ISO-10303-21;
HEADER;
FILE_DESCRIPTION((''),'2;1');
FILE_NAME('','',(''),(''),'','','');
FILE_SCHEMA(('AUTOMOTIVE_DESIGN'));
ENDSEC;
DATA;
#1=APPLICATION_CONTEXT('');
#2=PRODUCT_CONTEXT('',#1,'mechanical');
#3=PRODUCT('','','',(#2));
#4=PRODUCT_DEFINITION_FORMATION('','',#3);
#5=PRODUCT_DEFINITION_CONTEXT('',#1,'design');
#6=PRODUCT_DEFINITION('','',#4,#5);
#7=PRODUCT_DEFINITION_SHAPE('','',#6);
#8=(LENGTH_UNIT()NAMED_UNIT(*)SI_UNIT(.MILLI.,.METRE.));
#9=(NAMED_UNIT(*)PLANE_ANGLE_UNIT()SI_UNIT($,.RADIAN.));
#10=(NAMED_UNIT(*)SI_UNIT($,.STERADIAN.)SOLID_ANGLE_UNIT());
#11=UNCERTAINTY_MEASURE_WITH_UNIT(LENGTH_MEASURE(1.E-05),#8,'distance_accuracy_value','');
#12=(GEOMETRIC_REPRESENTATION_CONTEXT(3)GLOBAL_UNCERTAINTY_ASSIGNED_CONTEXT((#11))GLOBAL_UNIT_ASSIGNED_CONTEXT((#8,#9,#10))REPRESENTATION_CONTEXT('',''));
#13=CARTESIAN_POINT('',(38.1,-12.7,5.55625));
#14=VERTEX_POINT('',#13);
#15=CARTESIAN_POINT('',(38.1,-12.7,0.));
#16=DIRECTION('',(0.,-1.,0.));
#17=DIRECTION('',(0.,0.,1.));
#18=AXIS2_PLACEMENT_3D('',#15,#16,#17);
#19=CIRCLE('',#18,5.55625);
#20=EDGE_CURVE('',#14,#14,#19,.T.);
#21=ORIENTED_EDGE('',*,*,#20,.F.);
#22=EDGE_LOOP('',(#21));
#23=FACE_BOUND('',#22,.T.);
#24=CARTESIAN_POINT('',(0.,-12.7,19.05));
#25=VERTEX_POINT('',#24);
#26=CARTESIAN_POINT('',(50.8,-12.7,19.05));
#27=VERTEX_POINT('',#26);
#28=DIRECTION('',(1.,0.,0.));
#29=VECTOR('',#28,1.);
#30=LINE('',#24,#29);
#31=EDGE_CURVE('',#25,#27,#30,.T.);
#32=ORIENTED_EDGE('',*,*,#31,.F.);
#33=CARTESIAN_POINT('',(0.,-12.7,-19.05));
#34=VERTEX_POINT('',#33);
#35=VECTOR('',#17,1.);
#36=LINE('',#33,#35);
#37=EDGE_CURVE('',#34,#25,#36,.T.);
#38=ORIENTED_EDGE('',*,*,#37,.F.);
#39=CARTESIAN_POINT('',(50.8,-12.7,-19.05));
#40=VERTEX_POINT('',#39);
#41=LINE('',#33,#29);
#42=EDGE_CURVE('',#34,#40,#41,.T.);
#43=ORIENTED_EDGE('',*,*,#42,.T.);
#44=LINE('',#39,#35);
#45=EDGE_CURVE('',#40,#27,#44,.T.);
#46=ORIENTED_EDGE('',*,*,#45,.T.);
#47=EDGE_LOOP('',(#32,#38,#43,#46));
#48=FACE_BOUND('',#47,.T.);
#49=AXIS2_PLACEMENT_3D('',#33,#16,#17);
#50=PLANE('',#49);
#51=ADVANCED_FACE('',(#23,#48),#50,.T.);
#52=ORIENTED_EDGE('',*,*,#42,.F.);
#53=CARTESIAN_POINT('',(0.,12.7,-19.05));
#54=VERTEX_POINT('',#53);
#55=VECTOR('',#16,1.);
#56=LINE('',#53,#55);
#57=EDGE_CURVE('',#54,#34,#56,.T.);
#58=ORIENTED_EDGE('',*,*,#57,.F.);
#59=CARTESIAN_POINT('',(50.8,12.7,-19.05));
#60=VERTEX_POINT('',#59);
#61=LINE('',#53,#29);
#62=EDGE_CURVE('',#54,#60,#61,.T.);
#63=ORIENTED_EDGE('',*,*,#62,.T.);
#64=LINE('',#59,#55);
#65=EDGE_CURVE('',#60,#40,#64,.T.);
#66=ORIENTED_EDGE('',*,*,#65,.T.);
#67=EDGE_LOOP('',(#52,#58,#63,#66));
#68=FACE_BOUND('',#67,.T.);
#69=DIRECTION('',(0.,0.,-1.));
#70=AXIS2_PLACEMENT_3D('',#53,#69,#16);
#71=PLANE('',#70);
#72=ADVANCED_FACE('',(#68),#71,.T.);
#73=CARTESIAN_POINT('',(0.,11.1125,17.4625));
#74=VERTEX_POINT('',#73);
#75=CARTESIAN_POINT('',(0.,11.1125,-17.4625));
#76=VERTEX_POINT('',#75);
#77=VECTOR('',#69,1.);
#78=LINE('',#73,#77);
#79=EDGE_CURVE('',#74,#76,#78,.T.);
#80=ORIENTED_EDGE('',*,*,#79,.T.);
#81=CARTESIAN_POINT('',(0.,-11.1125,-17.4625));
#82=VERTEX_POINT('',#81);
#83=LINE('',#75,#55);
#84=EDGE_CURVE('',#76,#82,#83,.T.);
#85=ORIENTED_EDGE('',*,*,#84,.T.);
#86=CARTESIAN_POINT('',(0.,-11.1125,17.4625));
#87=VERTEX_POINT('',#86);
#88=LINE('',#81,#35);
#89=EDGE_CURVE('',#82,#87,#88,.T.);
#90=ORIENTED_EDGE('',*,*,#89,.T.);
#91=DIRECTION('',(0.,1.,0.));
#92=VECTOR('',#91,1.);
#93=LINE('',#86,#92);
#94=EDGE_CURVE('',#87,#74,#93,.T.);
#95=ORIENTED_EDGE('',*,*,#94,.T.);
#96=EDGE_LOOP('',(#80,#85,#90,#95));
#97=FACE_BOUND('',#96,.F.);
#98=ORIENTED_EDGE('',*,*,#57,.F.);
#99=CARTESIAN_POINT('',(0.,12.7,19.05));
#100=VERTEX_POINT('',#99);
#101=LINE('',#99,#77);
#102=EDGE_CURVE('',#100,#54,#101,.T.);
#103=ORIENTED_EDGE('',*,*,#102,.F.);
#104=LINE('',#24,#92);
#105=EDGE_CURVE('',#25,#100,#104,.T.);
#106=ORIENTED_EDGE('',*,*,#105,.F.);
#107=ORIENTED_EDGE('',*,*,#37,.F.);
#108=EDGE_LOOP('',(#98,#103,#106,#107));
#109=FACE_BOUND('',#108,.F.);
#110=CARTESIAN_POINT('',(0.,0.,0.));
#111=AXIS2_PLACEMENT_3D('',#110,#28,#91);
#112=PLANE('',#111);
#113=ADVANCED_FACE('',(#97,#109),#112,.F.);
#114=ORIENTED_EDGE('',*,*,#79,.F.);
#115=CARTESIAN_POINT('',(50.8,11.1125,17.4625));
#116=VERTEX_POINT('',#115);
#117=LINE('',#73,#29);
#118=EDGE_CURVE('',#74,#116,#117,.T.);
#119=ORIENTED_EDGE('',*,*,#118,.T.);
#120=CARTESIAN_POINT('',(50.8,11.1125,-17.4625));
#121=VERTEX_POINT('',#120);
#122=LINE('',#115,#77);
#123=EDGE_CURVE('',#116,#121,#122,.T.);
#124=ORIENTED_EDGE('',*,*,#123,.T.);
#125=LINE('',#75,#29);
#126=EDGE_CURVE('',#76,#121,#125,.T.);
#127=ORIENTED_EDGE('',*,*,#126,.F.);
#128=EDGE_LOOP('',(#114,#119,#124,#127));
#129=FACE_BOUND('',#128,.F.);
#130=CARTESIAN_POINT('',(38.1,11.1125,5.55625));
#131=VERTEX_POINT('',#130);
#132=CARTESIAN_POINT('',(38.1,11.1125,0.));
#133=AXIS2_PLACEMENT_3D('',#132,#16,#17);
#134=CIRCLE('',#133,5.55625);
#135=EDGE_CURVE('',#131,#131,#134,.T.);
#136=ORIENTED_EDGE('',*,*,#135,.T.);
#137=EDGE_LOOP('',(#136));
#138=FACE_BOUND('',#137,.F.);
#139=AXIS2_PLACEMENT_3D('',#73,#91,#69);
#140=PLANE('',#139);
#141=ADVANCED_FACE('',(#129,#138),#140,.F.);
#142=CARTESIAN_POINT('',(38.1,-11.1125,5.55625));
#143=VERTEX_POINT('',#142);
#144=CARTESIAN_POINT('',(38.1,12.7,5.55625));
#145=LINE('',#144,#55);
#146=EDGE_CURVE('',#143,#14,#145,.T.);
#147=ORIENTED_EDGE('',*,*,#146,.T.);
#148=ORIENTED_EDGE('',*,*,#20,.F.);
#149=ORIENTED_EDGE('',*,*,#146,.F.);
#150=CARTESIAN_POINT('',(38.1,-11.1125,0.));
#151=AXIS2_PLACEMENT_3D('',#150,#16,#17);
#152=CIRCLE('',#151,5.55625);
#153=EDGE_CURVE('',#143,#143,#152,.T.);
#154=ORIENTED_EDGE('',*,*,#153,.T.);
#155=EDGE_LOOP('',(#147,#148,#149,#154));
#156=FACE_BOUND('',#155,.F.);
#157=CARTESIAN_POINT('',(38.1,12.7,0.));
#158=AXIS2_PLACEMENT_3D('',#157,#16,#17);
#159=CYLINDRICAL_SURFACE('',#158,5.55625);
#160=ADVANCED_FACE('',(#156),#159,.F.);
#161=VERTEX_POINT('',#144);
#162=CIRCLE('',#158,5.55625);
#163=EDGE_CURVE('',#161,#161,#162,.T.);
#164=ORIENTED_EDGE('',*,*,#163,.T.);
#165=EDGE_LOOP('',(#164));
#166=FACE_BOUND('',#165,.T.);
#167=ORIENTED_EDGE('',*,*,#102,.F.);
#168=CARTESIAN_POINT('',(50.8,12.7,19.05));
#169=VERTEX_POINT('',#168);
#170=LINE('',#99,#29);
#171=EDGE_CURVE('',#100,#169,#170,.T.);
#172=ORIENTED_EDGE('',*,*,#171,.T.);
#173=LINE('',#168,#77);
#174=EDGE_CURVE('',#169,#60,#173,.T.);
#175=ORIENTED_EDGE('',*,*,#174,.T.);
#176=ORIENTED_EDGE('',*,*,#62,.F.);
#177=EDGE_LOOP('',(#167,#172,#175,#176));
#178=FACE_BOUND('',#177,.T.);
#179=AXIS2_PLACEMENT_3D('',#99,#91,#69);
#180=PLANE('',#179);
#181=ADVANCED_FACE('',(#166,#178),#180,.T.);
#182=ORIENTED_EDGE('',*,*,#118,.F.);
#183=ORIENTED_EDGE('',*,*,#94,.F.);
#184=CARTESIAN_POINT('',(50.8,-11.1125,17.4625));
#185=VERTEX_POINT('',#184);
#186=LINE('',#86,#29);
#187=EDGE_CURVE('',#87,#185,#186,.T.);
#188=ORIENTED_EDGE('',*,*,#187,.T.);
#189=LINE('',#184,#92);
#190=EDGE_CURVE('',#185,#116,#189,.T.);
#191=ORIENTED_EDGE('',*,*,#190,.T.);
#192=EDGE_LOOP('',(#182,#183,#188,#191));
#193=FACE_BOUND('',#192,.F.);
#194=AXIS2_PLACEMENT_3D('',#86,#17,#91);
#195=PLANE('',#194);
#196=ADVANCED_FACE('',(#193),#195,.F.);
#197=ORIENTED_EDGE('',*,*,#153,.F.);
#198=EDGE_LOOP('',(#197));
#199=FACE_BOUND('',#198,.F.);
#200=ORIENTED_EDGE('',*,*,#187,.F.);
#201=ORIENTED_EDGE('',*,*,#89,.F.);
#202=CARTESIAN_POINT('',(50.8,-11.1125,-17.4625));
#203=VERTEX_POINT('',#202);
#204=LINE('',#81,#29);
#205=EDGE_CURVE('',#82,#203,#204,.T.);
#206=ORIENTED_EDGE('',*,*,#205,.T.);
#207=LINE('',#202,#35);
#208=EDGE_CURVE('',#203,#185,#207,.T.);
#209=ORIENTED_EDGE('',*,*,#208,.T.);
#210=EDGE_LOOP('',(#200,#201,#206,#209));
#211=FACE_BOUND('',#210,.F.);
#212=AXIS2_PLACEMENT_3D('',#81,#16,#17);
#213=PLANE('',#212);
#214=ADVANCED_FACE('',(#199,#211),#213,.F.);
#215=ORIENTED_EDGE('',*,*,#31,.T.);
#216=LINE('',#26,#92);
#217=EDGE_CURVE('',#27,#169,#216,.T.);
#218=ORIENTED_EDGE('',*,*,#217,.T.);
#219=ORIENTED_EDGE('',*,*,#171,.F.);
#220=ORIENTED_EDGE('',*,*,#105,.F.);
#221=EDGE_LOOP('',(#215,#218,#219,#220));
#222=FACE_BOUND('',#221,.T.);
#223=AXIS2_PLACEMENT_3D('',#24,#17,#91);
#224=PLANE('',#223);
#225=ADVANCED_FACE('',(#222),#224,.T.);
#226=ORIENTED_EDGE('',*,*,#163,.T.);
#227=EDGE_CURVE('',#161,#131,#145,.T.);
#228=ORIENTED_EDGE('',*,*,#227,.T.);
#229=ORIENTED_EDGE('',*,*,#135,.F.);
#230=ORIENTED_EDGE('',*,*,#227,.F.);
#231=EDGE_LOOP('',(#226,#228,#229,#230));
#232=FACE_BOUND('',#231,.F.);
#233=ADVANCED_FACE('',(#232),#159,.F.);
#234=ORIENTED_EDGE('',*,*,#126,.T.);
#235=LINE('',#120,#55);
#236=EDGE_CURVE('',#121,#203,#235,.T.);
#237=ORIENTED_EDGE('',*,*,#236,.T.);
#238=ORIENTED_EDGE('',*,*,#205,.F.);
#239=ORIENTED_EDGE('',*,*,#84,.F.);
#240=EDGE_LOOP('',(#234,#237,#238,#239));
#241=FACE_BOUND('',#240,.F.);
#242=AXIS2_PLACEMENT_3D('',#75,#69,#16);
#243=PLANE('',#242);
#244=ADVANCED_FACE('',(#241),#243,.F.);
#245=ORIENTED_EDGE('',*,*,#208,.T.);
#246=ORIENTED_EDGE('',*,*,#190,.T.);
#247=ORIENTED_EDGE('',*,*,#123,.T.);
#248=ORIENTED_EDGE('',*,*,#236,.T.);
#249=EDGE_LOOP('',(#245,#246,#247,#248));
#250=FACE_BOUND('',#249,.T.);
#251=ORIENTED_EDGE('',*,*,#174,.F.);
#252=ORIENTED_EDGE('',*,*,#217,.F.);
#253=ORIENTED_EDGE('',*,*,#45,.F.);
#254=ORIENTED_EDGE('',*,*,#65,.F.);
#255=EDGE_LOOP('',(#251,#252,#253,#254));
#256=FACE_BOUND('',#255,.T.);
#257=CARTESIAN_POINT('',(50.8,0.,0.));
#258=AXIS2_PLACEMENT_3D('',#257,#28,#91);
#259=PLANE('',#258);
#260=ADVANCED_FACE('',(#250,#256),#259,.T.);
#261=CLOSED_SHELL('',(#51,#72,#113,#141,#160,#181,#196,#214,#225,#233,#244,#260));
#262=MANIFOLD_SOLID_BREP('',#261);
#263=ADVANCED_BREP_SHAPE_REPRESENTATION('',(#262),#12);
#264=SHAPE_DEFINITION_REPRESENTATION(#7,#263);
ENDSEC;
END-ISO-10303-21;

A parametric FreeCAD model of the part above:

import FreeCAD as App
import Part
import Sketcher
from FreeCAD import Vector
Q = App.Units.Quantity

doc = App.newDocument("Part")
params = doc.addObject("Spreadsheet::Sheet", "Params")
for row, (alias, value) in enumerate([
    ("sketch1_width", "1 in"),
    ("sketch1_height", "1.5 in"),
    ("pad1_length", "2 in"),
    ("sketch2_diameter", "0.4375 in"),
    ("hole_diameter", "0.4375 in"),
], start=1):
    params.set(f"A{row}", alias)
    params.set(f"B{row}", "=" + value)
    params.setAlias(f"B{row}", alias)

body = doc.addObject("PartDesign::Body", "Body")

# Sketch on YZ plane
sketch1 = body.newObject("Sketcher::SketchObject", "Sketch")
sketch1.AttachmentSupport = (doc.getObject("YZ_Plane"), [""])
sketch1.MapMode = "FlatFace"
sketch1.addGeometry(Part.LineSegment(Vector(13, 19, 0), Vector(-13, 19, 0)), False)
sketch1.addGeometry(Part.LineSegment(Vector(-13, 19, 0), Vector(-13, -19, 0)), False)
sketch1.addGeometry(Part.LineSegment(Vector(-13, -19, 0), Vector(13, -19, 0)), False)
sketch1.addGeometry(Part.LineSegment(Vector(13, -19, 0), Vector(13, 19, 0)), False)
sketch1.addGeometry(Part.LineSegment(Vector(-11, -17, 0), Vector(-11, 17, 0)), False)
sketch1.addGeometry(Part.LineSegment(Vector(-11, 17, 0), Vector(11, 17, 0)), False)
sketch1.addGeometry(Part.LineSegment(Vector(11, 17, 0), Vector(11, -17, 0)), False)
sketch1.addGeometry(Part.LineSegment(Vector(11, -17, 0), Vector(-11, -17, 0)), False)
sketch1.addConstraint(Sketcher.Constraint("Coincident", 0, 2, 1, 1))
sketch1.addConstraint(Sketcher.Constraint("Coincident", 1, 2, 2, 1))
sketch1.addConstraint(Sketcher.Constraint("Coincident", 2, 2, 3, 1))
sketch1.addConstraint(Sketcher.Constraint("Coincident", 3, 2, 0, 1))
sketch1.addConstraint(Sketcher.Constraint("Coincident", 4, 2, 5, 1))
sketch1.addConstraint(Sketcher.Constraint("Coincident", 5, 2, 6, 1))
sketch1.addConstraint(Sketcher.Constraint("Coincident", 6, 2, 7, 1))
sketch1.addConstraint(Sketcher.Constraint("Coincident", 7, 2, 4, 1))
sketch1.addConstraint(Sketcher.Constraint("Horizontal", 0))
sketch1.addConstraint(Sketcher.Constraint("Vertical", 1))
sketch1.addConstraint(Sketcher.Constraint("Horizontal", 2))
sketch1.addConstraint(Sketcher.Constraint("Vertical", 3))
sketch1.addConstraint(Sketcher.Constraint("Vertical", 4))
sketch1.addConstraint(Sketcher.Constraint("Horizontal", 5))
sketch1.addConstraint(Sketcher.Constraint("Vertical", 6))
sketch1.addConstraint(Sketcher.Constraint("Horizontal", 7))
sketch1.addConstraint(Sketcher.Constraint("Symmetric", 0, 2, 2, 2, -1, 1))
sketch1.addConstraint(Sketcher.Constraint("Symmetric", 4, 2, 6, 2, -1, 1))
sketch1.addConstraint(Sketcher.Constraint("DistanceX", 0, 2, 0, 1, Q("1 in")))
sketch1.addConstraint(Sketcher.Constraint("DistanceY", 1, 2, 1, 1, Q("1.5 in")))
sketch1.addConstraint(Sketcher.Constraint("DistanceX", 0, 2, 4, 2, Q("0.0625 in")))
sketch1.addConstraint(Sketcher.Constraint("DistanceY", 4, 2, 0, 2, Q("0.0625 in")))
sketch1.setExpression("Constraints[18]", "Params.sketch1_width")
sketch1.setExpression("Constraints[19]", "Params.sketch1_height")
pad1 = body.newObject("PartDesign::Pad", "Pad")
pad1.Profile = sketch1
pad1.setExpression("Length", "Params.pad1_length")

# Sketch on XZ plane
sketch2 = body.newObject("Sketcher::SketchObject", "Sketch001")
sketch2.AttachmentSupport = (doc.getObject("XZ_Plane"), [""])
sketch2.MapMode = "FlatFace"
sketch2.AttachmentOffset = App.Placement(Vector(0, 0, -0.5 * 25.4), App.Rotation())
sketch2.addGeometry(Part.Circle(Vector(38, 0, 0), Vector(0, 0, 1), 6), False)
sketch2.addConstraint(Sketcher.Constraint("PointOnObject", 0, 3, -1))
sketch2.addConstraint(Sketcher.Constraint("Diameter", 0, Q("0.4375 in")))
sketch2.addConstraint(Sketcher.Constraint("DistanceX", -1, 1, 0, 3, Q("1.5 in")))
sketch2.setExpression("Constraints[1]", "Params.sketch2_diameter")
doc.recompute()
hole = body.newObject("PartDesign::Hole", "Hole")
hole.Profile = sketch2
hole.ThreadType = "None"
hole.setExpression("Diameter", "Params.hole_diameter")
hole.DepthType = "ThroughAll"
hole.Reversed = True

doc.recompute()
